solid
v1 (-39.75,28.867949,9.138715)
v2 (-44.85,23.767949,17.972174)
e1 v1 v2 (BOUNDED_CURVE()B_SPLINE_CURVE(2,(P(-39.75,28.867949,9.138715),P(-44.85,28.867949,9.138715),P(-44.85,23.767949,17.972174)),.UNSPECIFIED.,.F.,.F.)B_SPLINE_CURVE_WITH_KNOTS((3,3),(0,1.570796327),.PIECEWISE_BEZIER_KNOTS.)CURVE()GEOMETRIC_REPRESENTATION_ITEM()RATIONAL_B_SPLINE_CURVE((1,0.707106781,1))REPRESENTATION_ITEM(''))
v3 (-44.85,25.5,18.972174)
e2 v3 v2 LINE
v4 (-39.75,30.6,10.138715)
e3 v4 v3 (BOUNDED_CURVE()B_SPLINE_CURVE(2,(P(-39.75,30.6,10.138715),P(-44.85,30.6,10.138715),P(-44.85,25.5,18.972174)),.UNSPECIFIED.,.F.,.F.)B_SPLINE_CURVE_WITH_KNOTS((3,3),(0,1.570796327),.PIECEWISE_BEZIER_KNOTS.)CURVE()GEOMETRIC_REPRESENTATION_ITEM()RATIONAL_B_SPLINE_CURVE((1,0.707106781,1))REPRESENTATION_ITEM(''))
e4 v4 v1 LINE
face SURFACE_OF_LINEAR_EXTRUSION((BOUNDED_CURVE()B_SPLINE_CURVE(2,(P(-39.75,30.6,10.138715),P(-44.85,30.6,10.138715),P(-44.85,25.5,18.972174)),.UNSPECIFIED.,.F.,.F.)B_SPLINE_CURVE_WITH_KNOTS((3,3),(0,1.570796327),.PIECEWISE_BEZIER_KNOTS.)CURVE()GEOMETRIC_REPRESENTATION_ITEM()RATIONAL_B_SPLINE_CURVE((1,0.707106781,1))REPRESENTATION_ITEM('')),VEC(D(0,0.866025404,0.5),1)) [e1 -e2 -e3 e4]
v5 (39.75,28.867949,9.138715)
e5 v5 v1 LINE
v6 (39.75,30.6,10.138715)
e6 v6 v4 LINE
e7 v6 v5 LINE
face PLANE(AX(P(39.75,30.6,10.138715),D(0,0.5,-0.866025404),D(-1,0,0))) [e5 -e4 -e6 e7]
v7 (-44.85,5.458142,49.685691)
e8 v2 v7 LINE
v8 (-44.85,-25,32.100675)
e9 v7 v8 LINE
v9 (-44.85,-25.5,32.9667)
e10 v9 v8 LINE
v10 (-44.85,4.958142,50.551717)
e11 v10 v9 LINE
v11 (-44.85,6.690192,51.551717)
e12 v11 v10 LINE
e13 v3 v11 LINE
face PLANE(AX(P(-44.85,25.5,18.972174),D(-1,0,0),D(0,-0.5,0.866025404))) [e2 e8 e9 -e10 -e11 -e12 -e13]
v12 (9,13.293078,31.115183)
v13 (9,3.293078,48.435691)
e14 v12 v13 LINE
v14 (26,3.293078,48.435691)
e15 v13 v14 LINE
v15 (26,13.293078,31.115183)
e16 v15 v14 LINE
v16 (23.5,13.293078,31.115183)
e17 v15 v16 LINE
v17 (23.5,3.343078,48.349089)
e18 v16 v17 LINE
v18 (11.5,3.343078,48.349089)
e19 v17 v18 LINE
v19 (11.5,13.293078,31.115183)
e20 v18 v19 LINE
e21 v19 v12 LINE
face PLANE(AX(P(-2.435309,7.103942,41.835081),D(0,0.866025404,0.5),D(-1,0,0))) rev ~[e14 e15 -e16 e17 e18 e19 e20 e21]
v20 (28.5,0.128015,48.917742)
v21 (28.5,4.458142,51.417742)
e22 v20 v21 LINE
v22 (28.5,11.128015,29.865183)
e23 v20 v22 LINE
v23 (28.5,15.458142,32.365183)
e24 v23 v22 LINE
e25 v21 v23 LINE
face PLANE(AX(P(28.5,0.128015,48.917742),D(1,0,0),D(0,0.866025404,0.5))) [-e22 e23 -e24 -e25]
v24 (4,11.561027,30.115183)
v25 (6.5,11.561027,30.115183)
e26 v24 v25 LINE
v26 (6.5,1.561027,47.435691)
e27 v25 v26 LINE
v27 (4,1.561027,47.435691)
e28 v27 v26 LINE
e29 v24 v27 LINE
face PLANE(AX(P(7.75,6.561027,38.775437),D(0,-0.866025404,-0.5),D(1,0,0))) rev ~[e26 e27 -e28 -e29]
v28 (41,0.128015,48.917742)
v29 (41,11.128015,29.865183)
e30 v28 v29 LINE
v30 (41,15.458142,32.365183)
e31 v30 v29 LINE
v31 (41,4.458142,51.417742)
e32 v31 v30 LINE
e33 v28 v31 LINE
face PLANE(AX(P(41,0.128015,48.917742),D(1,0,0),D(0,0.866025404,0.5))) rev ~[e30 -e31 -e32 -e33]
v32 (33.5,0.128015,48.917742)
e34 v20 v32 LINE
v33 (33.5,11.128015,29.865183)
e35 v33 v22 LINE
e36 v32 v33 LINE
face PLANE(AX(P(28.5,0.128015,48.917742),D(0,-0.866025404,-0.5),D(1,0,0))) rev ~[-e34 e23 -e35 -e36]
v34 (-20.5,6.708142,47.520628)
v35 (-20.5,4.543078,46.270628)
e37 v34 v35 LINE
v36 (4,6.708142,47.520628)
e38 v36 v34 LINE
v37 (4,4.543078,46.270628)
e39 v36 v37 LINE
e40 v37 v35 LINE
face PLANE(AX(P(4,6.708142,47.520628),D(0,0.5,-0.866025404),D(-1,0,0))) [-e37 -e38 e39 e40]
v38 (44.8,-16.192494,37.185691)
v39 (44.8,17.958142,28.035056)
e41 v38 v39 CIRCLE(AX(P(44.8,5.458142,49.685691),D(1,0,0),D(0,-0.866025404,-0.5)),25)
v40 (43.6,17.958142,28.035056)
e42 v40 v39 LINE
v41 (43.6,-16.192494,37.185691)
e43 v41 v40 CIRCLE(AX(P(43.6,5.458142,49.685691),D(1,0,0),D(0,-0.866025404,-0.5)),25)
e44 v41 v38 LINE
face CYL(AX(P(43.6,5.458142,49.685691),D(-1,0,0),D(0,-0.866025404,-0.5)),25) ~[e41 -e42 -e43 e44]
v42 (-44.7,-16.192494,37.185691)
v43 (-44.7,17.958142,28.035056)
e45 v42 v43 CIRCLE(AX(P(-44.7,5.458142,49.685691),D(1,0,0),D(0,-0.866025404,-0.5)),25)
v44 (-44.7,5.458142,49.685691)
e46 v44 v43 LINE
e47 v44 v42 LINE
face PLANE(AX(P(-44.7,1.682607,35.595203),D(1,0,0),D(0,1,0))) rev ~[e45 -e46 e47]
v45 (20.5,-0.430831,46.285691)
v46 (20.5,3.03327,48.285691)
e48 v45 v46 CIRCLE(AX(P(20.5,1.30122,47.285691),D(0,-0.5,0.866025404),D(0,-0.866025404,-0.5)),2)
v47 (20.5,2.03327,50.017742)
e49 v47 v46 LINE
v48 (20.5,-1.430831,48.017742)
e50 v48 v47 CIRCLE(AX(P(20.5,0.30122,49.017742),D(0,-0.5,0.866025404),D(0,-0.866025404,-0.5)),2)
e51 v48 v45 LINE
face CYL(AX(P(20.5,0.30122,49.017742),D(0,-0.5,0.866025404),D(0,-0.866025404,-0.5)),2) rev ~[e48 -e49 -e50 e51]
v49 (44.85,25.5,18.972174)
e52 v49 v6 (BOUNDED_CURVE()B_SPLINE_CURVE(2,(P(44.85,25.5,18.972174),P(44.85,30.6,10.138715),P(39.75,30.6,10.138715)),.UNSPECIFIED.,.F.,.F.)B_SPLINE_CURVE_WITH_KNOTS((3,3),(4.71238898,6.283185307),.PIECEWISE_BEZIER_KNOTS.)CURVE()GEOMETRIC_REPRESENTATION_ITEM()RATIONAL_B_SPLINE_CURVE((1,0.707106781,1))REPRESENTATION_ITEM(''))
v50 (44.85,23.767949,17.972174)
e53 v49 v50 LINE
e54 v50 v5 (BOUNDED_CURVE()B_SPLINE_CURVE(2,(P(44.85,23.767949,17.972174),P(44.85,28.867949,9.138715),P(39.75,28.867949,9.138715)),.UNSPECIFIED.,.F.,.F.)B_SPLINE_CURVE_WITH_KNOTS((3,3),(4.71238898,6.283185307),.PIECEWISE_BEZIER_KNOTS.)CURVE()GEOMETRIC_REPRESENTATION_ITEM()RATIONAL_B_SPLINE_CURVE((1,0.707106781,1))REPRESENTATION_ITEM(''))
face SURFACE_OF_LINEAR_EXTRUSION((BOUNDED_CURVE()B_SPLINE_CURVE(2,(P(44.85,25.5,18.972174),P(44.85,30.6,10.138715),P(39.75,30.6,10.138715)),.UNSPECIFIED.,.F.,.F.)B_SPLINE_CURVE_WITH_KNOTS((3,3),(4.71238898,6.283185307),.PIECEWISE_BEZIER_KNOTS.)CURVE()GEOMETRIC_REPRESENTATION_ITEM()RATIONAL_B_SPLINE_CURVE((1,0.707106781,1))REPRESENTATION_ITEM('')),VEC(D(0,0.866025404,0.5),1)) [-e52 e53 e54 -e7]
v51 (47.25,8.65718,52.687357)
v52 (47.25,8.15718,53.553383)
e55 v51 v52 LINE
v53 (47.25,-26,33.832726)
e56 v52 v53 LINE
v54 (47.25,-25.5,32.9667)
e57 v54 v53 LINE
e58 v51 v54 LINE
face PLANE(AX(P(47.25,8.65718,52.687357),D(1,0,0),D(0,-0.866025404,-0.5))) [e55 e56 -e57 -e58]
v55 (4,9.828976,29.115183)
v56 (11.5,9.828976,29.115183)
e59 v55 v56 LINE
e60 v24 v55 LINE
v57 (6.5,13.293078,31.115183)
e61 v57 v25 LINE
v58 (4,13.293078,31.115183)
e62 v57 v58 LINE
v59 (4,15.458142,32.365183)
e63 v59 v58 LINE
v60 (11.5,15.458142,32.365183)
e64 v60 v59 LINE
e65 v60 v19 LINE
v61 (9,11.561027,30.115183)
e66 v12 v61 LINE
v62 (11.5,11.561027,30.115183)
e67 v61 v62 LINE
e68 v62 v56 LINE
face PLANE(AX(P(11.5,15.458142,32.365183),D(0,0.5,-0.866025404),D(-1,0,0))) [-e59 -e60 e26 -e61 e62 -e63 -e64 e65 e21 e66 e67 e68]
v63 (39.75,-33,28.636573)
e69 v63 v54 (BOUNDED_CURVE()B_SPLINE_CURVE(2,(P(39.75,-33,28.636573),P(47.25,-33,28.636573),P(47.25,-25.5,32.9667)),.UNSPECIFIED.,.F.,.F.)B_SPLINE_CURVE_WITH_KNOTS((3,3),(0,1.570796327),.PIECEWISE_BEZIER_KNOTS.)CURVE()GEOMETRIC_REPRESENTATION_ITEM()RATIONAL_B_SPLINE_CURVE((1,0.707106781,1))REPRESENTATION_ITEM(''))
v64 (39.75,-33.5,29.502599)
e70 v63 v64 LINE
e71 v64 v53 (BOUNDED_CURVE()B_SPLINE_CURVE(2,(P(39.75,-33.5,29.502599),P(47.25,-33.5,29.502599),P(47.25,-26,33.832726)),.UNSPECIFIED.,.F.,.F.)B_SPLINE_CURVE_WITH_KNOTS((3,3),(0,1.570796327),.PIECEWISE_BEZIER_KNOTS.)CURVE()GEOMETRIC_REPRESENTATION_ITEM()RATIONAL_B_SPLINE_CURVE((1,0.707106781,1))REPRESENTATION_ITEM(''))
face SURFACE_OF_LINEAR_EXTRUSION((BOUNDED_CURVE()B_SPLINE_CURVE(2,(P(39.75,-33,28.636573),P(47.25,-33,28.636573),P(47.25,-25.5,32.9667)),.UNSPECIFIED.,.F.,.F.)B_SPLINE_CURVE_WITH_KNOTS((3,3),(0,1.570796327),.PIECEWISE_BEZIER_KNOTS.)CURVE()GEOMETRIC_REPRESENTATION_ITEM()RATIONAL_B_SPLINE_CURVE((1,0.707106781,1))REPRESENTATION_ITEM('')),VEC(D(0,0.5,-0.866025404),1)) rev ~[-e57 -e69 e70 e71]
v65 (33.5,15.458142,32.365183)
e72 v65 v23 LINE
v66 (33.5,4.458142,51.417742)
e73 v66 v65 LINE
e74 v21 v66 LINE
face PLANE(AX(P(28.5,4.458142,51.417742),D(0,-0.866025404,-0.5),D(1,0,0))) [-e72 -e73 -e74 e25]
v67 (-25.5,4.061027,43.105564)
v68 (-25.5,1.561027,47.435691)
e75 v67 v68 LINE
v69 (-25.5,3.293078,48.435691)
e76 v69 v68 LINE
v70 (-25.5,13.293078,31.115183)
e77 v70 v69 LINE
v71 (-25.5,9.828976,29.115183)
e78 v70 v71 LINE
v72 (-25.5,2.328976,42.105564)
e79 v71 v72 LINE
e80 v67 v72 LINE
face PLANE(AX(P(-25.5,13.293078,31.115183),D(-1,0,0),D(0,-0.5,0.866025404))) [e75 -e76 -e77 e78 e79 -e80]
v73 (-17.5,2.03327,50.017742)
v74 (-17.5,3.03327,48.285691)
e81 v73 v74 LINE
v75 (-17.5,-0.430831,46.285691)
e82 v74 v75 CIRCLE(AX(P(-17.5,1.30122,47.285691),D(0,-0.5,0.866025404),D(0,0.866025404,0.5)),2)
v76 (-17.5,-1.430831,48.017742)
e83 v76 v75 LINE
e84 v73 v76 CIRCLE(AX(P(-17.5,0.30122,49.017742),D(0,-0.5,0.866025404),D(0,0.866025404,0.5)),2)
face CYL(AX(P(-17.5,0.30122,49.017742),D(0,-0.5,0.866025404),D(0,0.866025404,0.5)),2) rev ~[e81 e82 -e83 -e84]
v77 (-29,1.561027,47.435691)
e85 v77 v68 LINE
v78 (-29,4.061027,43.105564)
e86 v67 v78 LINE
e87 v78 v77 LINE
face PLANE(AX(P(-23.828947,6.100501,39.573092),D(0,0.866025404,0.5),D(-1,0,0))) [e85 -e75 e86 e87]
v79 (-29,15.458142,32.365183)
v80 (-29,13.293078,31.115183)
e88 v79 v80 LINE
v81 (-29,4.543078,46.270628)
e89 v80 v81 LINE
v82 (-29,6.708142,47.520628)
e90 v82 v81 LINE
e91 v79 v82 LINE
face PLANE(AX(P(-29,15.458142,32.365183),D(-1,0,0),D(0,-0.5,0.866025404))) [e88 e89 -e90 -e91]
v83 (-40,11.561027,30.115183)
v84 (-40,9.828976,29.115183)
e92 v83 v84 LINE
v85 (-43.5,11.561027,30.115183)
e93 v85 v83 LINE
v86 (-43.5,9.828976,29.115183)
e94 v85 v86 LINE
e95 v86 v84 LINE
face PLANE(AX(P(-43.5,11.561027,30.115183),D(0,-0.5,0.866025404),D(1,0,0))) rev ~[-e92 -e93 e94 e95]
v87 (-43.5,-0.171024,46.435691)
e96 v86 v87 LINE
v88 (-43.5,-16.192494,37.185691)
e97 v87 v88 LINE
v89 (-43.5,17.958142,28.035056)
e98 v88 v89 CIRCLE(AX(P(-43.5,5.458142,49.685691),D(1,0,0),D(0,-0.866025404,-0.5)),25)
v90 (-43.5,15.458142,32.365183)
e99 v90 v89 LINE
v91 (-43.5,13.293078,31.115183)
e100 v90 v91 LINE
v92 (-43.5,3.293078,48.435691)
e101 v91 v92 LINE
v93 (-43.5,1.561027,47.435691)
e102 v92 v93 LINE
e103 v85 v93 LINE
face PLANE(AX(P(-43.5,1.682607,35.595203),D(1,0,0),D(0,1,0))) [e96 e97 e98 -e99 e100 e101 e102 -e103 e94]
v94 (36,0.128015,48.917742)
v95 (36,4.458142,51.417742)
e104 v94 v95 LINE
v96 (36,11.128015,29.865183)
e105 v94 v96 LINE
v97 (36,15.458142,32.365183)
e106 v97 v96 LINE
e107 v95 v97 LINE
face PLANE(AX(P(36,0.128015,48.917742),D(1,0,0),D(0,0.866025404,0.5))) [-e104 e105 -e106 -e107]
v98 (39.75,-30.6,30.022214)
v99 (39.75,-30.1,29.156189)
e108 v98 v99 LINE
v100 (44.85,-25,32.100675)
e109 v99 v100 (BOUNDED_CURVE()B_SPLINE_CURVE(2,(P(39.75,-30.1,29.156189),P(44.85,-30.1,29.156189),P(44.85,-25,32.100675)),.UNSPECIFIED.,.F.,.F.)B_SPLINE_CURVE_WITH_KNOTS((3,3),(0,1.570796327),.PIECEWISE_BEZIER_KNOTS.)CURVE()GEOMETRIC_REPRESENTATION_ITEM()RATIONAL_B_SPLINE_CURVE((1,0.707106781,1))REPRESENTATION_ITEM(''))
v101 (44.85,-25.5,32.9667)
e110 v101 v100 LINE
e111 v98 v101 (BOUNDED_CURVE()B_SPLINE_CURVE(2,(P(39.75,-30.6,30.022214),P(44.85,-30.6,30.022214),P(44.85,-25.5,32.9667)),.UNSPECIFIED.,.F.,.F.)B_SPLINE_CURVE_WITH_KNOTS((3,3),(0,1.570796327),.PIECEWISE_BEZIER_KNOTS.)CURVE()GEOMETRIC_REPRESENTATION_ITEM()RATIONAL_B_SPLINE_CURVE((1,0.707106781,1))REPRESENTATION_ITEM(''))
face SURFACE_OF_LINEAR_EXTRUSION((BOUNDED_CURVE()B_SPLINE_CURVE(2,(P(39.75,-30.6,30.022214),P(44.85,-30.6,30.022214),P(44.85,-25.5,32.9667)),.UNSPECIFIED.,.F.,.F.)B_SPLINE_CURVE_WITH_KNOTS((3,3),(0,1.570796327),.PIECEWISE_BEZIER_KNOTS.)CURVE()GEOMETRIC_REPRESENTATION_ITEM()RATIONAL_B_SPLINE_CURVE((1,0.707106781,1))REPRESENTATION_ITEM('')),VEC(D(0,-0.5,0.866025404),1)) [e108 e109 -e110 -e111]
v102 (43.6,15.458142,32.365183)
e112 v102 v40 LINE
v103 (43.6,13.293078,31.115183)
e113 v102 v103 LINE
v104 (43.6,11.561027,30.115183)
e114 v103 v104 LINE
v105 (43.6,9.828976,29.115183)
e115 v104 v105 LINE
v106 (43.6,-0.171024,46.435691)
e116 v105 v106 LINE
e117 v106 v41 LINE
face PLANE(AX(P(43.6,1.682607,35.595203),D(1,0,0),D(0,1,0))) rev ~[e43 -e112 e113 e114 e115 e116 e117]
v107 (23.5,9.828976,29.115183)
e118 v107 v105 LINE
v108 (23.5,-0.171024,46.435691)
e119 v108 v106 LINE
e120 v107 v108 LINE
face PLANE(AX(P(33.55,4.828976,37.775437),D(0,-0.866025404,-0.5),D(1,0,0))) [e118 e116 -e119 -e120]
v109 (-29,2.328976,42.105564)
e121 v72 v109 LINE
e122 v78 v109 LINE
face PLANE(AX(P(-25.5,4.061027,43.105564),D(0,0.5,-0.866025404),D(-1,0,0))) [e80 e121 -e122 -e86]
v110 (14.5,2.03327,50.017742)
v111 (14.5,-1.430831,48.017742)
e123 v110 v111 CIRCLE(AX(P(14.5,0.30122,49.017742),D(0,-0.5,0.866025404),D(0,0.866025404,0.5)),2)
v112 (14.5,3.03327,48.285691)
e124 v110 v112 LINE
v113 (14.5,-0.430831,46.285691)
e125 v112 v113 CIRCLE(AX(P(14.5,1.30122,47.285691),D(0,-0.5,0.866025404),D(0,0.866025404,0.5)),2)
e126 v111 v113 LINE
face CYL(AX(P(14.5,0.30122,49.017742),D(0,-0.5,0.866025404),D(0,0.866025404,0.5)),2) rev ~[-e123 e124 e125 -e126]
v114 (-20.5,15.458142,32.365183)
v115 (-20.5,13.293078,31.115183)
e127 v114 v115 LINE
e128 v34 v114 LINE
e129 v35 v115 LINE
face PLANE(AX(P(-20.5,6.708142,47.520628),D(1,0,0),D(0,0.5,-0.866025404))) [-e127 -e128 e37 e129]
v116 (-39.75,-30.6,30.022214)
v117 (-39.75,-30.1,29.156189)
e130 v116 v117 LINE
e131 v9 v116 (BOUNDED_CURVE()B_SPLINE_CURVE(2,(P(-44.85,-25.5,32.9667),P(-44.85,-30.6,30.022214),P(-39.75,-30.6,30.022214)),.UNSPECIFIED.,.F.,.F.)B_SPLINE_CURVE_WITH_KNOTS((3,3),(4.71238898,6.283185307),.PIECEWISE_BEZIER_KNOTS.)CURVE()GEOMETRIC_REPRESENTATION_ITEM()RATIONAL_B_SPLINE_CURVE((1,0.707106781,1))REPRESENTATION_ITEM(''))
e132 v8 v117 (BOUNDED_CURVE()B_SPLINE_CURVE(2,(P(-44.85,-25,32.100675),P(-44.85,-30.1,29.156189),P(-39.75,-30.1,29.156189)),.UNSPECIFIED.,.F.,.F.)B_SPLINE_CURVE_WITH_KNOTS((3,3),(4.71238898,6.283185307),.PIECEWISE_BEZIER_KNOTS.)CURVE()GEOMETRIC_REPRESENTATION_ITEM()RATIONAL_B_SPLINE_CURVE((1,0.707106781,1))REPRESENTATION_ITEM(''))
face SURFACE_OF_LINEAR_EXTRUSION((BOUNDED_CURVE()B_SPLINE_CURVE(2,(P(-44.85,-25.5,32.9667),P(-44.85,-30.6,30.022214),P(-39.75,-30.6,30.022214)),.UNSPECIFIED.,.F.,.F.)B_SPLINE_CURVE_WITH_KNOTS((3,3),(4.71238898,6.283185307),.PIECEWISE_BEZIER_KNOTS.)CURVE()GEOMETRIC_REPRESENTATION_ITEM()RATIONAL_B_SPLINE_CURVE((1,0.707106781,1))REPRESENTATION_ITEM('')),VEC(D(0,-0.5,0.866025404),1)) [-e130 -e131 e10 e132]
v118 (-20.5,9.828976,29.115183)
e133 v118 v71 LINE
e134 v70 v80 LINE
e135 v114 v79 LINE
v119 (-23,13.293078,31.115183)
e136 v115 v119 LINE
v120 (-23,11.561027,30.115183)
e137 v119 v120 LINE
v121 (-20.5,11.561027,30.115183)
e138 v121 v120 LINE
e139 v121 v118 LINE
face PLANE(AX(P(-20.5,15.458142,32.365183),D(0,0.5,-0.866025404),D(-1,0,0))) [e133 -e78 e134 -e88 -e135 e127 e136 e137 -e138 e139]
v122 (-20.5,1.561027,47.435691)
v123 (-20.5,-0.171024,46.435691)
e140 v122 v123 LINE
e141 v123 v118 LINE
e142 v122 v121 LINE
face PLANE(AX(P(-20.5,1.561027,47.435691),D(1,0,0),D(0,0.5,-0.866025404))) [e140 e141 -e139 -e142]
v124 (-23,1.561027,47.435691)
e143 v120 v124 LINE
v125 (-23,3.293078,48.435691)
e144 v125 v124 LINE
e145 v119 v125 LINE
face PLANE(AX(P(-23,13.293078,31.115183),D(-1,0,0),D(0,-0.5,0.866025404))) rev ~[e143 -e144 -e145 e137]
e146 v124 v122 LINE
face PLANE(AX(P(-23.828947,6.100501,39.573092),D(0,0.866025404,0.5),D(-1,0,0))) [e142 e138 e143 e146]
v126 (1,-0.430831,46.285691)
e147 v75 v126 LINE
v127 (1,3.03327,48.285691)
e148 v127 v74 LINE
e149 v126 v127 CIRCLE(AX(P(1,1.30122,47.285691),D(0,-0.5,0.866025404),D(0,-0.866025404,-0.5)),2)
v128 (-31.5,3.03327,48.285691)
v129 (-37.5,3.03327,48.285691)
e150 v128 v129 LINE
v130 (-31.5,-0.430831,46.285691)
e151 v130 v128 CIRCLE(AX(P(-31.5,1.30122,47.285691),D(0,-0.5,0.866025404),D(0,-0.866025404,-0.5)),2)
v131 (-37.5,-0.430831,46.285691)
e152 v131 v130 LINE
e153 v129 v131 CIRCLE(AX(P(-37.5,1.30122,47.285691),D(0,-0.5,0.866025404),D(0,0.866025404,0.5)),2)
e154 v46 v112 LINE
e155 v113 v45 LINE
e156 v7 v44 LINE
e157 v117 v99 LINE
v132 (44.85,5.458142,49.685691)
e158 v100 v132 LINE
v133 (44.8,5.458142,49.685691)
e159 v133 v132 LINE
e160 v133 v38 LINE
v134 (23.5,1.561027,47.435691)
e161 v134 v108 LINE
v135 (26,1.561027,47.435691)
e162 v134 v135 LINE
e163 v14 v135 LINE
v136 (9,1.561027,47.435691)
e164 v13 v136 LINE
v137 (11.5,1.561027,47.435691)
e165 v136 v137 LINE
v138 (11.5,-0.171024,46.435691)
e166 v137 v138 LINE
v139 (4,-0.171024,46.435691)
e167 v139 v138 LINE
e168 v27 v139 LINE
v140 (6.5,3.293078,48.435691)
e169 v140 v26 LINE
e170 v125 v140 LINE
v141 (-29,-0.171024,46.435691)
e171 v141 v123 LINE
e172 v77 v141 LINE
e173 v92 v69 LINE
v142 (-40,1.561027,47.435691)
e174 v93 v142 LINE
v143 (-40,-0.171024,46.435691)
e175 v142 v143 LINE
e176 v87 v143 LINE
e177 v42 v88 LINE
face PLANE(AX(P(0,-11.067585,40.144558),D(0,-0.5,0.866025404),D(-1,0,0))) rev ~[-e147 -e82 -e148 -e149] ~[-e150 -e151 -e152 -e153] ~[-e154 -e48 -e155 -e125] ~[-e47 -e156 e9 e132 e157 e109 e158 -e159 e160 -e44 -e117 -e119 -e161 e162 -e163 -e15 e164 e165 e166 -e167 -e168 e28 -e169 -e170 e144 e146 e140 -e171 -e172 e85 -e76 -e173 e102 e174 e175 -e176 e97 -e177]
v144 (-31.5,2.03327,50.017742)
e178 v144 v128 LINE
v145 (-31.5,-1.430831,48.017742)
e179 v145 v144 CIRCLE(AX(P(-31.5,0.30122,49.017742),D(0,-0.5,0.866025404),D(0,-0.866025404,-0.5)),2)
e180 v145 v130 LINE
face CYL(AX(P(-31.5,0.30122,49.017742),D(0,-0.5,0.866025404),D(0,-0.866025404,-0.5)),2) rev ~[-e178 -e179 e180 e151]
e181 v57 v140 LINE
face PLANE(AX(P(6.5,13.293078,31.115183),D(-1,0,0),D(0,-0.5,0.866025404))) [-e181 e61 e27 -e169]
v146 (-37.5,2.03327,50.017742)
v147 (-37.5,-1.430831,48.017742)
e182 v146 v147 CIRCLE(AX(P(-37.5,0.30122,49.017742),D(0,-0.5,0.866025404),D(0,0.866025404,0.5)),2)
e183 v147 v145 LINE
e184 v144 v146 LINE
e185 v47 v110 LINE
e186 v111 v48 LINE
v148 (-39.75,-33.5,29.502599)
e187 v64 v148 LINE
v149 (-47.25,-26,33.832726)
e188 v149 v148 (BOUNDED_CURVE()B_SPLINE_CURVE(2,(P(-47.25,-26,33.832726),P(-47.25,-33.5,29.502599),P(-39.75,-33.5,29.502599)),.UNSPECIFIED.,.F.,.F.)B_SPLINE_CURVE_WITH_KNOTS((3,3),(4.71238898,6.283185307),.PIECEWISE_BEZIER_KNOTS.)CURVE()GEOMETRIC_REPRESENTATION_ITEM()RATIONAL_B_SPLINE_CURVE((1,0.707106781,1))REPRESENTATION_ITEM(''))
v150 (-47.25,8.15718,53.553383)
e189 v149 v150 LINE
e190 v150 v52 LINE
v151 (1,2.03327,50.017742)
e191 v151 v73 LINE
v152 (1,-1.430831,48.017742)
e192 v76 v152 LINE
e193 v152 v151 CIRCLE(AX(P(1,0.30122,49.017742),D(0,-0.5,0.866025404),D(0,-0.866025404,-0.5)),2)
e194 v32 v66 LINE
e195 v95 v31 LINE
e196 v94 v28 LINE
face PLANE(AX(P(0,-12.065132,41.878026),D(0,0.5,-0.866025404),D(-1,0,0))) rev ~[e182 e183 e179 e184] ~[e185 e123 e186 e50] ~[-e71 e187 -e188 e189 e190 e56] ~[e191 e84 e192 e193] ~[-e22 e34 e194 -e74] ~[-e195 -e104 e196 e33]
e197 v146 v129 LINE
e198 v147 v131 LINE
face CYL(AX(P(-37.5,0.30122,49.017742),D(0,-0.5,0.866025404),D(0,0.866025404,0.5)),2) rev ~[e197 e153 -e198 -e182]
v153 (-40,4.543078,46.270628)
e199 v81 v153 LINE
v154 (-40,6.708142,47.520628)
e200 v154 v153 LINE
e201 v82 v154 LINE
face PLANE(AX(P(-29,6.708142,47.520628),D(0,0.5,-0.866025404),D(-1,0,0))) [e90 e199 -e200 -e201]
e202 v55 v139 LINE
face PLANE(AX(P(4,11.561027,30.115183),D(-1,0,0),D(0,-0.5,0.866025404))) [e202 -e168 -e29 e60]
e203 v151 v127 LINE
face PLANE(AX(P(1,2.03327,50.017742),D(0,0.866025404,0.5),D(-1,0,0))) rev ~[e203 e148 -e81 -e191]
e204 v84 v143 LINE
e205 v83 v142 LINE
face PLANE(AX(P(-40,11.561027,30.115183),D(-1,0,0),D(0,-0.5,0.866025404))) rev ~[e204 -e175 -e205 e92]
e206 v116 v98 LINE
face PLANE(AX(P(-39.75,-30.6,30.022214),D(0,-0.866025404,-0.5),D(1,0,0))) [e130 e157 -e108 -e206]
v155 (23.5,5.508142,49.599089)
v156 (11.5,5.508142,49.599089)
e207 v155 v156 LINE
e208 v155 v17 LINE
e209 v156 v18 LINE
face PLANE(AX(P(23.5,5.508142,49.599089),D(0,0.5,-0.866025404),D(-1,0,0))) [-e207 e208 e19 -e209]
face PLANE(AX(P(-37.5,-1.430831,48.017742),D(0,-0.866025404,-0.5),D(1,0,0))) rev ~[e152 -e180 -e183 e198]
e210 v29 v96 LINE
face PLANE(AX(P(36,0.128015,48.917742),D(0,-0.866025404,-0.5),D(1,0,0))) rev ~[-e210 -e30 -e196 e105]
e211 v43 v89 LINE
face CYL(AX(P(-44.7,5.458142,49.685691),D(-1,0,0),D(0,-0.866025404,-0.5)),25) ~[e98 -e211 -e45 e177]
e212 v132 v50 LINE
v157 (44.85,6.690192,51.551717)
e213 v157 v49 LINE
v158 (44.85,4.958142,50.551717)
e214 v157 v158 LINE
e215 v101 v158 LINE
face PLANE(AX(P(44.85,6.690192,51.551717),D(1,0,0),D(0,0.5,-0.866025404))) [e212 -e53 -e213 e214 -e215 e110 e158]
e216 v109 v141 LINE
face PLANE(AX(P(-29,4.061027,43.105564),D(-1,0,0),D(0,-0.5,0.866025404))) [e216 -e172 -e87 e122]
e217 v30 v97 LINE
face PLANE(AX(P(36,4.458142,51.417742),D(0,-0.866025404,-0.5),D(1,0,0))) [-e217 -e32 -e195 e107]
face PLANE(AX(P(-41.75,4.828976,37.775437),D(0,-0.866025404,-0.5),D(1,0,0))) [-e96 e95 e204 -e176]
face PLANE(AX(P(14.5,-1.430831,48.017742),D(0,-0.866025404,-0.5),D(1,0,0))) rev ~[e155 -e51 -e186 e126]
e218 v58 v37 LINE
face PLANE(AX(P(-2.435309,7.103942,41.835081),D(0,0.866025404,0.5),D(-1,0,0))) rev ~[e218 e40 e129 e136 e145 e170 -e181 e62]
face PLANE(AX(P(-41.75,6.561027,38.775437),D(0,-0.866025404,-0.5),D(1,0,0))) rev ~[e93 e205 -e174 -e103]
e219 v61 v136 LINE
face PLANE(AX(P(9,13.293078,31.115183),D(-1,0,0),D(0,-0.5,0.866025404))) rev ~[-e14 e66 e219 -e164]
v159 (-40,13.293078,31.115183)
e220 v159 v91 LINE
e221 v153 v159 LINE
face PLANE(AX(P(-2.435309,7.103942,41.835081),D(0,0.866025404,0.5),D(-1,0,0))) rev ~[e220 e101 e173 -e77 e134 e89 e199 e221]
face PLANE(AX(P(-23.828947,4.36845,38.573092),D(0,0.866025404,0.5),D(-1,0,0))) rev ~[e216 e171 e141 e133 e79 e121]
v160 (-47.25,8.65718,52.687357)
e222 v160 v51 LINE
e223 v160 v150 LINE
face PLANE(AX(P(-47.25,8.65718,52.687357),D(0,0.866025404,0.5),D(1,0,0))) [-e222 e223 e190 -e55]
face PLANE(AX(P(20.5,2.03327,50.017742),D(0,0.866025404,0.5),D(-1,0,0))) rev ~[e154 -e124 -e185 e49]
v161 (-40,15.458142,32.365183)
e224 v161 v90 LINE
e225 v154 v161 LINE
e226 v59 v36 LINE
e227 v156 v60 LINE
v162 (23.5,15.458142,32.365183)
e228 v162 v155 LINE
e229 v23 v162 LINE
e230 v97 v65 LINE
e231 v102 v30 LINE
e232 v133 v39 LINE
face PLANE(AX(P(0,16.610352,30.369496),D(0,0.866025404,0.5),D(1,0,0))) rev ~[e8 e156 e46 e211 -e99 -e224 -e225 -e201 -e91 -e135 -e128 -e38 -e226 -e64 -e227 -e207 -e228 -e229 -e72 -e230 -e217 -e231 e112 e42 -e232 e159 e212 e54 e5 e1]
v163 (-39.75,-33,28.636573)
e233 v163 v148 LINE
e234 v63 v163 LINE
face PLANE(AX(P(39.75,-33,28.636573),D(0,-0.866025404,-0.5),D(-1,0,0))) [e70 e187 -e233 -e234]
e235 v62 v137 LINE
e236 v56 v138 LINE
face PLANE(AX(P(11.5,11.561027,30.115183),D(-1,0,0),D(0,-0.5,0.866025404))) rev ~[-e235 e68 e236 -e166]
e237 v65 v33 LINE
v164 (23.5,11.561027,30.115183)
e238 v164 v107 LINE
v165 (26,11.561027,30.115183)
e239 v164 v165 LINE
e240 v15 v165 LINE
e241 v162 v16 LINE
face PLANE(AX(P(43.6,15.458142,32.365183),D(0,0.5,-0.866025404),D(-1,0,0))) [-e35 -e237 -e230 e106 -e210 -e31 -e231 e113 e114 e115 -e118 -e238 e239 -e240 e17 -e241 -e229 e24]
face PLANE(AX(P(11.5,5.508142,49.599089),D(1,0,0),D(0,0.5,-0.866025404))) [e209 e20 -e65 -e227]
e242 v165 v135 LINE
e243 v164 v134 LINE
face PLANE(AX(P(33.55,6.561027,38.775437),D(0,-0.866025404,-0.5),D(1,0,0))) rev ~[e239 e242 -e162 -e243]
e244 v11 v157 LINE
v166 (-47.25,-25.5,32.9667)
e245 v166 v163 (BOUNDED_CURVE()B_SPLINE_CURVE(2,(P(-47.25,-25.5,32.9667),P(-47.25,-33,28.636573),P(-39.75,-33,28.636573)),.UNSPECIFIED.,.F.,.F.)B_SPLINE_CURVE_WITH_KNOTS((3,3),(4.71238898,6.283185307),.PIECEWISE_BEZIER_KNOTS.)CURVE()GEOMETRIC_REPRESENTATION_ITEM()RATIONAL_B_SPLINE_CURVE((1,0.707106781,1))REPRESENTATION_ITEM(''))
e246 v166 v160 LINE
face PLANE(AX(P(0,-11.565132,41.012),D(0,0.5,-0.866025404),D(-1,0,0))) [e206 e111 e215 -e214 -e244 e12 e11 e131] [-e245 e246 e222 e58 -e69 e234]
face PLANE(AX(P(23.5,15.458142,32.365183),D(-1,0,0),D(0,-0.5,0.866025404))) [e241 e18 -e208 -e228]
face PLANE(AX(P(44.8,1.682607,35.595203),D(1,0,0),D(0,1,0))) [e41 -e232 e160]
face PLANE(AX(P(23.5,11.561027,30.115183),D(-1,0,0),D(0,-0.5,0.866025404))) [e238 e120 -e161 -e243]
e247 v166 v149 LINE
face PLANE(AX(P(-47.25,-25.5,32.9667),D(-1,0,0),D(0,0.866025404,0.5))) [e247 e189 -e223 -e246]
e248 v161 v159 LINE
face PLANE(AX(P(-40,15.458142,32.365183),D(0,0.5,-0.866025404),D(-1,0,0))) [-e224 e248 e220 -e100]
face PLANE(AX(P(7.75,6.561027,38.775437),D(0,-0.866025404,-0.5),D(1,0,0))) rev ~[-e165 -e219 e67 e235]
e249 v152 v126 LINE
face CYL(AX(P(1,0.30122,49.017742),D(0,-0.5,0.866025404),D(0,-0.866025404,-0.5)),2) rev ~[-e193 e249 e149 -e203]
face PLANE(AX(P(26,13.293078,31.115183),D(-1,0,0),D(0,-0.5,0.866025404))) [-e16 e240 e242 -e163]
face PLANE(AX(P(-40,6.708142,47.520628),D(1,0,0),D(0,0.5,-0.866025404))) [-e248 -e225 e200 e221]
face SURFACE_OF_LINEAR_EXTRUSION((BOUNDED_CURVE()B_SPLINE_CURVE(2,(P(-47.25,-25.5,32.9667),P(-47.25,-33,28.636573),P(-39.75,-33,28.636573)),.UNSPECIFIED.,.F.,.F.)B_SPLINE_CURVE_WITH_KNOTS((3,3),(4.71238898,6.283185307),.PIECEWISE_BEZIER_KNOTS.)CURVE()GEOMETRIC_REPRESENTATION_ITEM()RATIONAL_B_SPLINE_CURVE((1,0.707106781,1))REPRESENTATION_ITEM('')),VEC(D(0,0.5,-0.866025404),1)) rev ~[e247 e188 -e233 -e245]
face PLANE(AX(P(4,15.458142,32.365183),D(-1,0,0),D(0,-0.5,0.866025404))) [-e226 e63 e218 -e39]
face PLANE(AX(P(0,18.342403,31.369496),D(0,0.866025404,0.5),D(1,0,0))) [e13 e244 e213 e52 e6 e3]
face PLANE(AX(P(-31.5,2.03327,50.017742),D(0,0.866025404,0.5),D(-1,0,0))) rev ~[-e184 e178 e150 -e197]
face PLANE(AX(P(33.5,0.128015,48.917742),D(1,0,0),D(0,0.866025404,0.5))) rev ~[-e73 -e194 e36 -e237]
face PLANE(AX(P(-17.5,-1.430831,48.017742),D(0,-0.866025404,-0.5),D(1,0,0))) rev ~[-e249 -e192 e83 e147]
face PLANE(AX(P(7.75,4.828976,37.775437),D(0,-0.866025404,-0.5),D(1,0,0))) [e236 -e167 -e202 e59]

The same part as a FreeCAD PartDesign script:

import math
import FreeCAD as App
import Part
import Sketcher

V = App.Vector
Q = App.Units.Quantity


def add_polygon(sketch, points):
    """Adds a closed chain of lines whose ends are joined by coincident constraints."""
    first, n = sketch.GeometryCount, len(points)
    for a, b in zip(points, points[1:] + points[:1]):
        sketch.addGeometry(Part.LineSegment(App.Vector(*a, 0), App.Vector(*b, 0)), False)
    for i in range(n):
        sketch.addConstraint(Sketcher.Constraint("Coincident", first + i, 2, first + (i + 1) % n, 1))

doc = App.newDocument("Part")
body = doc.addObject("PartDesign::Body", "Body")
body.AllowCompound = True

sketch1 = doc.addObject("Sketcher::SketchObject", "Sketch")
body.addObject(sketch1)
sketch1.AttachmentSupport = (doc.XY_Plane, [""])
sketch1.MapMode = "FlatFace"
sketch1.addGeometry(Part.ArcOfCircle(Part.Circle(V(-17.5, 24.769735, 0), V(0, 0, 1), 2), math.radians(90), math.radians(270)), False)
sketch1.addGeometry(Part.LineSegment(V(-17.5, 22.769735, 0), V(1, 22.769735, 0)), False)
sketch1.addGeometry(Part.ArcOfCircle(Part.Circle(V(1, 24.769735, 0), V(0, 0, 1), 2), math.radians(-90), math.radians(90)), False)
sketch1.addGeometry(Part.LineSegment(V(1, 26.769735, 0), V(-17.5, 26.769735, 0)), False)
sketch1.addGeometry(Part.ArcOfCircle(Part.Circle(V(-31.5, 24.769735, 0), V(0, 0, 1), 2), math.radians(-90), math.radians(90)), False)
sketch1.addGeometry(Part.LineSegment(V(-31.5, 26.769735, 0), V(-37.5, 26.769735, 0)), False)
sketch1.addGeometry(Part.ArcOfCircle(Part.Circle(V(-37.5, 24.769735, 0), V(0, 0, 1), 2), math.radians(90), math.radians(270)), False)
sketch1.addGeometry(Part.LineSegment(V(-37.5, 22.769735, 0), V(-31.5, 22.769735, 0)), False)
sketch1.addGeometry(Part.ArcOfCircle(Part.Circle(V(14.5, 24.769735, 0), V(0, 0, 1), 2), math.radians(90), math.radians(270)), False)
sketch1.addGeometry(Part.LineSegment(V(14.5, 22.769735, 0), V(20.5, 22.769735, 0)), False)
sketch1.addGeometry(Part.ArcOfCircle(Part.Circle(V(20.5, 24.769735, 0), V(0, 0, 1), 2), math.radians(-90), math.radians(90)), False)
sketch1.addGeometry(Part.LineSegment(V(20.5, 26.769735, 0), V(14.5, 26.769735, 0)), False)
add_polygon(sketch1, [(28.5, 29.569735), (28.5, 24.569735), (33.5, 24.569735), (33.5, 29.569735)])
add_polygon(sketch1, [(36, 29.569735), (36, 24.569735), (41, 24.569735), (41, 29.569735)])
sketch1.addConstraint(Sketcher.Constraint("Tangent", 0, 2, 1, 1))
sketch1.addConstraint(Sketcher.Constraint("Tangent", 1, 2, 2, 1))
sketch1.addConstraint(Sketcher.Constraint("Tangent", 2, 2, 3, 1))
sketch1.addConstraint(Sketcher.Constraint("Tangent", 3, 2, 0, 1))
sketch1.addConstraint(Sketcher.Constraint("Tangent", 4, 2, 5, 1))
sketch1.addConstraint(Sketcher.Constraint("Tangent", 5, 2, 6, 1))
sketch1.addConstraint(Sketcher.Constraint("Tangent", 6, 2, 7, 1))
sketch1.addConstraint(Sketcher.Constraint("Tangent", 7, 2, 4, 1))
sketch1.addConstraint(Sketcher.Constraint("Tangent", 8, 2, 9, 1))
sketch1.addConstraint(Sketcher.Constraint("Tangent", 9, 2, 10, 1))
sketch1.addConstraint(Sketcher.Constraint("Tangent", 10, 2, 11, 1))
sketch1.addConstraint(Sketcher.Constraint("Tangent", 11, 2, 8, 1))
sketch1.addConstraint(Sketcher.Constraint("Horizontal", 1))
sketch1.addConstraint(Sketcher.Constraint("Horizontal", 3))
sketch1.addConstraint(Sketcher.Constraint("Horizontal", 5))
sketch1.addConstraint(Sketcher.Constraint("Horizontal", 7))
sketch1.addConstraint(Sketcher.Constraint("Horizontal", 9))
sketch1.addConstraint(Sketcher.Constraint("Horizontal", 11))
sketch1.addConstraint(Sketcher.Constraint("Vertical", 12))
sketch1.addConstraint(Sketcher.Constraint("Horizontal", 13))
sketch1.addConstraint(Sketcher.Constraint("Vertical", 14))
sketch1.addConstraint(Sketcher.Constraint("Horizontal", 15))
sketch1.addConstraint(Sketcher.Constraint("Vertical", 16))
sketch1.addConstraint(Sketcher.Constraint("Horizontal", 17))
sketch1.addConstraint(Sketcher.Constraint("Vertical", 18))
sketch1.addConstraint(Sketcher.Constraint("Horizontal", 19))
sketch1.addConstraint(Sketcher.Constraint("Equal", 2, 4))
sketch1.addConstraint(Sketcher.Constraint("Equal", 6, 8))
sketch1.addConstraint(Sketcher.Constraint("Horizontal", 2, 3, 4, 3))
sketch1.addConstraint(Sketcher.Constraint("Horizontal", 6, 3, 8, 3))
sketch1.addConstraint(Sketcher.Constraint("Horizontal", 13, 2, 16, 2))
sketch1.addConstraint(Sketcher.Constraint("Horizontal", 15, 2, 18, 2))
sketch1.addConstraint(Sketcher.Constraint("Equal", 7, 9))
sketch1.addConstraint(Sketcher.Constraint("Equal", 15, 17))
sketch1.addConstraint(Sketcher.Constraint("Equal", 19, 12))
sketch1.addConstraint(Sketcher.Constraint("Radius", 0, 2.0))
sketch1.addConstraint(Sketcher.Constraint("DistanceX", 5, 2, 5, 1, 6.0))
sketch1.addConstraint(Sketcher.Constraint("DistanceX", 13, 1, 13, 2, 5.0))
sketch1.addConstraint(Sketcher.Constraint("DistanceX", 1, 1, 1, 2, 18.5))
sketch1.addConstraint(Sketcher.Constraint("DistanceX", -1, 1, 2, 3, 1.0))
sketch1.addConstraint(Sketcher.Constraint("DistanceX", -1, 1, 16, 2, 36.0))
sketch1.addConstraint(Sketcher.Constraint("DistanceX", 4, 3, 0, 3, 14.0))
sketch1.addConstraint(Sketcher.Constraint("DistanceX", 0, 3, 8, 3, 32.0))
sketch1.addConstraint(Sketcher.Constraint("DistanceX", 10, 3, 12, 2, 8.0))
sketch1.addConstraint(Sketcher.Constraint("DistanceY", 12, 2, 10, 3, 0.2))
sketch1.addConstraint(Sketcher.Constraint("DistanceY", -1, 1, 0, 3, 24.769735))
pad1 = doc.addObject("PartDesign::Pad", "Pad")
body.addObject(pad1)
pad1.Profile = sketch1
pad1.Length = 25
pad1.Reversed = True
body2 = doc.addObject("PartDesign::Body", "Body001")
body2.AllowCompound = True
doc.recompute()

body.Placement = App.Placement(V(0, -21.15, 36.632875), App.Rotation(V(1, 0, 0), 30))
boolean = doc.addObject("PartDesign::Boolean", "Boolean")
body2.addObject(boolean)
boolean.Type = "Fuse"
boolean.addObjects([body])
body3 = doc.addObject("PartDesign::Body", "Body002")
body3.AllowCompound = True

sketch2 = doc.addObject("Sketcher::SketchObject", "Sketch001")
body3.addObject(sketch2)
sketch2.AttachmentSupport = (doc.getObject("XY_Plane002"), [""])
sketch2.MapMode = "FlatFace"
add_polygon(sketch2, [(26, 40.3), (26, 20.3), (43.6, 20.3), (43.6, 40.3)])
add_polygon(sketch2, [(-25.5, 40.3), (-25.5, 20.3), (-23, 20.3), (-23, 40.3)])
add_polygon(sketch2, [(6.5, 40.3), (6.5, 20.3), (9, 20.3), (9, 40.3)])
sketch2.addConstraint(Sketcher.Constraint("Vertical", 0))
sketch2.addConstraint(Sketcher.Constraint("Horizontal", 1))
sketch2.addConstraint(Sketcher.Constraint("Vertical", 2))
sketch2.addConstraint(Sketcher.Constraint("Horizontal", 3))
sketch2.addConstraint(Sketcher.Constraint("Vertical", 4))
sketch2.addConstraint(Sketcher.Constraint("Horizontal", 5))
sketch2.addConstraint(Sketcher.Constraint("Vertical", 6))
sketch2.addConstraint(Sketcher.Constraint("Horizontal", 7))
sketch2.addConstraint(Sketcher.Constraint("Vertical", 8))
sketch2.addConstraint(Sketcher.Constraint("Horizontal", 9))
sketch2.addConstraint(Sketcher.Constraint("Vertical", 10))
sketch2.addConstraint(Sketcher.Constraint("Horizontal", 11))
sketch2.addConstraint(Sketcher.Constraint("Horizontal", 1, 2, 4, 2))
sketch2.addConstraint(Sketcher.Constraint("Horizontal", 3, 2, 6, 2))
sketch2.addConstraint(Sketcher.Constraint("Horizontal", 5, 2, 8, 2))
sketch2.addConstraint(Sketcher.Constraint("Horizontal", 7, 2, 10, 2))
sketch2.addConstraint(Sketcher.Constraint("Equal", 7, 9))
sketch2.addConstraint(Sketcher.Constraint("DistanceY", 0, 2, 0, 1, 20.0))
sketch2.addConstraint(Sketcher.Constraint("DistanceX", 1, 1, 1, 2, 17.6))
sketch2.addConstraint(Sketcher.Constraint("DistanceX", 5, 1, 5, 2, 2.5))
sketch2.addConstraint(Sketcher.Constraint("DistanceX", -1, 1, 0, 2, 26.0))
sketch2.addConstraint(Sketcher.Constraint("DistanceX", 5, 2, -1, 1, 23.0))
sketch2.addConstraint(Sketcher.Constraint("DistanceX", -1, 1, 9, 2, 9.0))
sketch2.addConstraint(Sketcher.Constraint("DistanceY", -1, 1, 0, 2, 20.3))
pad2 = doc.addObject("PartDesign::Pad", "Pad001")
body3.addObject(pad2)
pad2.Profile = sketch2
pad2.Length = 2
body4 = doc.addObject("PartDesign::Body", "Body003")
body4.AllowCompound = True
doc.recompute()

body3.Placement = App.Placement(V(0, 23.443078, 13.534867), App.Rotation(V(1, 0, 0), 120))
boolean2 = doc.addObject("PartDesign::Boolean", "Boolean001")
body4.addObject(boolean2)
boolean2.Type = "Fuse"
boolean2.addObjects([body3])
body5 = doc.addObject("PartDesign::Body", "Body004")

sketch3 = doc.addObject("Sketcher::SketchObject", "Sketch002")
body5.addObject(sketch3)
sketch3.AttachmentSupport = (doc.getObject("XY_Plane004"), [""])
sketch3.MapMode = "FlatFace"
add_polygon(sketch3, [(43.6, 40.3), (-43.5, 40.3), (-43.5, 20.3), (-40, 20.3), (-40, 37.8), (-29, 37.8), (-29, 20.3), (-20.5, 20.3), (-20.5, 37.8), (4, 37.8), (4, 20.3), (11.5, 20.3), (11.5, 40.2), (23.5, 40.2), (23.5, 20.3), (43.6, 20.3)])
sketch3.addConstraint(Sketcher.Constraint("Horizontal", 0))
sketch3.addConstraint(Sketcher.Constraint("Vertical", 1))
sketch3.addConstraint(Sketcher.Constraint("Horizontal", 2))
sketch3.addConstraint(Sketcher.Constraint("Vertical", 3))
sketch3.addConstraint(Sketcher.Constraint("Horizontal", 4))
sketch3.addConstraint(Sketcher.Constraint("Vertical", 5))
sketch3.addConstraint(Sketcher.Constraint("Horizontal", 6))
sketch3.addConstraint(Sketcher.Constraint("Vertical", 7))
sketch3.addConstraint(Sketcher.Constraint("Horizontal", 8))
sketch3.addConstraint(Sketcher.Constraint("Vertical", 9))
sketch3.addConstraint(Sketcher.Constraint("Horizontal", 10))
sketch3.addConstraint(Sketcher.Constraint("Vertical", 11))
sketch3.addConstraint(Sketcher.Constraint("Horizontal", 12))
sketch3.addConstraint(Sketcher.Constraint("Vertical", 13))
sketch3.addConstraint(Sketcher.Constraint("Horizontal", 14))
sketch3.addConstraint(Sketcher.Constraint("Vertical", 15))
sketch3.addConstraint(Sketcher.Constraint("Horizontal", 2, 2, 5, 2))
sketch3.addConstraint(Sketcher.Constraint("Horizontal", 4, 2, 7, 2))
sketch3.addConstraint(Sketcher.Constraint("Horizontal", 6, 2, 9, 2))
sketch3.addConstraint(Sketcher.Constraint("Horizontal", 10, 2, 13, 2))
sketch3.addConstraint(Sketcher.Constraint("DistanceX", 4, 1, 4, 2, 11.0))
sketch3.addConstraint(Sketcher.Constraint("DistanceX", 12, 1, 12, 2, 12.0))
sketch3.addConstraint(Sketcher.Constraint("DistanceY", 1, 2, 1, 1, 20.0))
sketch3.addConstraint(Sketcher.Constraint("DistanceX", 0, 2, 0, 1, 87.1))
sketch3.addConstraint(Sketcher.Constraint("DistanceX", 2, 1, 2, 2, 3.5))
sketch3.addConstraint(Sketcher.Constraint("DistanceX", 6, 1, 6, 2, 8.5))
sketch3.addConstraint(Sketcher.Constraint("DistanceX", 8, 1, 8, 2, 24.5))
sketch3.addConstraint(Sketcher.Constraint("DistanceX", 10, 1, 10, 2, 7.5))
sketch3.addConstraint(Sketcher.Constraint("DistanceY", 3, 1, 3, 2, 17.5))
sketch3.addConstraint(Sketcher.Constraint("DistanceY", 11, 1, 11, 2, 19.9))
sketch3.addConstraint(Sketcher.Constraint("DistanceX", 2, 2, -1, 1, 40.0))
sketch3.addConstraint(Sketcher.Constraint("DistanceY", -1, 1, 0, 2, 40.3))
pad3 = doc.addObject("PartDesign::Pad", "Pad002")
body5.addObject(pad3)
pad3.Profile = sketch3
pad3.Length = 2.5
body6 = doc.addObject("PartDesign::Body", "Body005")
doc.recompute()

body5.Placement = App.Placement(V(0, 25.608142, 14.784867), App.Rotation(V(1, 0, 0), 120))
boolean3 = doc.addObject("PartDesign::Boolean", "Boolean002")
body6.addObject(boolean3)
boolean3.Type = "Fuse"
boolean3.addObjects([body5])
body7 = doc.addObject("PartDesign::Body", "Body006")

sketch4 = doc.addObject("Sketcher::SketchObject", "Sketch003")
body7.addObject(sketch4)
sketch4.AttachmentSupport = (doc.getObject("YZ_Plane006"), [""])
sketch4.MapMode = "FlatFace"
sketch4.addGeometry(Part.LineSegment(V(5.458142, 49.685691, 0), V(-16.192494, 37.185691, 0)), False)
sketch4.addGeometry(Part.ArcOfCircle(Part.Circle(V(5.458142, 49.685691, 0), V(0, 0, 1), 25), math.radians(-150), math.radians(-60)), False)
sketch4.addGeometry(Part.LineSegment(V(17.958142, 28.035056, 0), V(5.458142, 49.685691, 0)), False)
sketch4.addConstraint(Sketcher.Constraint("Coincident", 0, 2, 1, 1))
sketch4.addConstraint(Sketcher.Constraint("Coincident", 1, 2, 2, 1))
sketch4.addConstraint(Sketcher.Constraint("Coincident", 2, 2, 0, 1))
sketch4.addConstraint(Sketcher.Constraint("Coincident", 2, 2, 1, 3))
sketch4.addConstraint(Sketcher.Constraint("Perpendicular", 0, 2))
sketch4.addConstraint(Sketcher.Constraint("Radius", 1, 25.0))
sketch4.addConstraint(Sketcher.Constraint("Angle", 0, Q("-150 deg")))
sketch4.addConstraint(Sketcher.Constraint("DistanceX", -1, 1, 1, 3, 5.458142))
sketch4.addConstraint(Sketcher.Constraint("DistanceY", -1, 1, 1, 3, 49.685691))
pad4 = doc.addObject("PartDesign::Pad", "Pad003")
body7.addObject(pad4)
pad4.Profile = sketch4
pad4.Length = 1.2
body8 = doc.addObject("PartDesign::Body", "Body007")
doc.recompute()

body7.Placement = App.Placement(V(-44.7, 0, 0), App.Rotation(V(0, 0, 1), 0))
boolean4 = doc.addObject("PartDesign::Boolean", "Boolean003")
body8.addObject(boolean4)
boolean4.Type = "Fuse"
boolean4.addObjects([body7])
body9 = doc.addObject("PartDesign::Body", "Body008")

sketch5 = doc.addObject("Sketcher::SketchObject", "Sketch004")
body9.addObject(sketch5)
sketch5.AttachmentSupport = (doc.getObject("YZ_Plane008"), [""])
sketch5.MapMode = "FlatFace"
sketch5.addGeometry(Part.LineSegment(V(5.458142, 49.685691, 0), V(-16.192494, 37.185691, 0)), False)
sketch5.addGeometry(Part.ArcOfCircle(Part.Circle(V(5.458142, 49.685691, 0), V(0, 0, 1), 25), math.radians(-150), math.radians(-60)), False)
sketch5.addGeometry(Part.LineSegment(V(17.958142, 28.035056, 0), V(5.458142, 49.685691, 0)), False)
sketch5.addConstraint(Sketcher.Constraint("Coincident", 0, 2, 1, 1))
sketch5.addConstraint(Sketcher.Constraint("Coincident", 1, 2, 2, 1))
sketch5.addConstraint(Sketcher.Constraint("Coincident", 2, 2, 0, 1))
sketch5.addConstraint(Sketcher.Constraint("Coincident", 2, 2, 1, 3))
sketch5.addConstraint(Sketcher.Constraint("Perpendicular", 0, 2))
sketch5.addConstraint(Sketcher.Constraint("Radius", 1, 25.0))
sketch5.addConstraint(Sketcher.Constraint("Angle", 0, Q("-150 deg")))
sketch5.addConstraint(Sketcher.Constraint("DistanceX", -1, 1, 1, 3, 5.458142))
sketch5.addConstraint(Sketcher.Constraint("DistanceY", -1, 1, 1, 3, 49.685691))
pad5 = doc.addObject("PartDesign::Pad", "Pad004")
body9.addObject(pad5)
pad5.Profile = sketch5
pad5.Length = 1.2
body10 = doc.addObject("PartDesign::Body", "Body009")
doc.recompute()

body9.Placement = App.Placement(V(43.6, 0, 0), App.Rotation(V(0, 0, 1), 0))
boolean5 = doc.addObject("PartDesign::Boolean", "Boolean004")
body10.addObject(boolean5)
boolean5.Type = "Fuse"
boolean5.addObjects([body9])
body11 = doc.addObject("PartDesign::Body", "Body010")

sketch6 = doc.addObject("Sketcher::SketchObject", "Sketch005")
body11.addObject(sketch6)
sketch6.Placement = App.Placement(V(0, -11.896283, 40.82081), App.Rotation(V(-1, 0, 0), V(0, -0.866025404, -0.5), V(0, -0.5, 0.866025404), "ZXY"))
sketch6.addGeometry(Part.LineSegment(V(44.85, -21.461813, 0), V(44.85, 15.70822, 0)), False)
sketch6.addGeometry(Part.BSplineCurve([V(44.85, 15.70822, 0), V(44.85, 21.597192, 0), V(39.75, 21.597192, 0)], [3, 3], [4.71238898, 6.283185307], False, 2, [1, 0.707106781, 1], False), False)
sketch6.addGeometry(Part.LineSegment(V(39.75, 21.597192, 0), V(-39.75, 21.597192, 0)), False)
sketch6.addGeometry(Part.BSplineCurve([V(-39.75, 21.597192, 0), V(-44.85, 21.597192, 0), V(-44.85, 15.70822, 0)], [3, 3], [0, 1.570796327], False, 2, [1, 0.707106781, 1], False), False)
sketch6.addGeometry(Part.LineSegment(V(-44.85, 15.70822, 0), V(-44.85, -21.461813, 0)), False)
sketch6.addGeometry(Part.LineSegment(V(-44.85, -21.461813, 0), V(44.85, -21.461813, 0)), False)
sketch6.addConstraint(Sketcher.Constraint("Block", 1))
sketch6.addConstraint(Sketcher.Constraint("Block", 3))
sketch6.addConstraint(Sketcher.Constraint("Coincident", 0, 2, 1, 1))
sketch6.addConstraint(Sketcher.Constraint("Coincident", 1, 2, 2, 1))
sketch6.addConstraint(Sketcher.Constraint("Coincident", 2, 2, 3, 1))
sketch6.addConstraint(Sketcher.Constraint("Coincident", 3, 2, 4, 1))
sketch6.addConstraint(Sketcher.Constraint("Coincident", 4, 2, 5, 1))
sketch6.addConstraint(Sketcher.Constraint("Coincident", 5, 2, 0, 1))
sketch6.addConstraint(Sketcher.Constraint("Vertical", 0))
sketch6.addConstraint(Sketcher.Constraint("Vertical", 4))
sketch6.addConstraint(Sketcher.Constraint("Horizontal", 5))
sketch6.addConstraint(Sketcher.Constraint("DistanceY", 0, 1, 0, 2, 37.170032))
pad6 = doc.addObject("PartDesign::Pad", "Pad005")
body11.addObject(pad6)
pad6.Profile = sketch6
pad6.Length = 1
pad6.Reversed = True
body12 = doc.addObject("PartDesign::Body", "Body011")

sketch7 = doc.addObject("Sketcher::SketchObject", "Sketch006")
body12.addObject(sketch7)
sketch7.AttachmentSupport = (doc.getObject("XY_Plane011"), [""])
sketch7.MapMode = "FlatFace"
sketch7.addGeometry(Part.LineSegment(V(-47.25, 33.841016, 0), V(-47.25, -5.600298, 0)), False)
sketch7.addGeometry(Part.BSplineCurve([V(-47.25, -5.600298, 0), V(-47.25, -14.260552, 0), V(-39.75, -14.260552, 0)], [3, 3], [4.71238898, 6.283185307], False, 2, [1, 0.707106781, 1], False), False)
sketch7.addGeometry(Part.LineSegment(V(-39.75, -14.260552, 0), V(39.75, -14.260552, 0)), False)
sketch7.addGeometry(Part.BSplineCurve([V(39.75, -14.260552, 0), V(47.25, -14.260552, 0), V(47.25, -5.600298, 0)], [3, 3], [0, 1.570796327], False, 2, [1, 0.707106781, 1], False), False)
sketch7.addGeometry(Part.LineSegment(V(47.25, -5.600298, 0), V(47.25, 33.841016, 0)), False)
sketch7.addGeometry(Part.LineSegment(V(47.25, 33.841016, 0), V(-47.25, 33.841016, 0)), False)
sketch7.addConstraint(Sketcher.Constraint("Block", 1))
sketch7.addConstraint(Sketcher.Constraint("Block", 3))
sketch7.addConstraint(Sketcher.Constraint("Coincident", 0, 2, 1, 1))
sketch7.addConstraint(Sketcher.Constraint("Coincident", 1, 2, 2, 1))
sketch7.addConstraint(Sketcher.Constraint("Coincident", 2, 2, 3, 1))
sketch7.addConstraint(Sketcher.Constraint("Coincident", 3, 2, 4, 1))
sketch7.addConstraint(Sketcher.Constraint("Coincident", 4, 2, 5, 1))
sketch7.addConstraint(Sketcher.Constraint("Coincident", 5, 2, 0, 1))
sketch7.addConstraint(Sketcher.Constraint("Vertical", 0))
sketch7.addConstraint(Sketcher.Constraint("Vertical", 4))
sketch7.addConstraint(Sketcher.Constraint("Horizontal", 5))
sketch7.addConstraint(Sketcher.Constraint("DistanceY", 0, 2, 0, 1, 39.441314))
pad7 = doc.addObject("PartDesign::Pad", "Pad006")
body12.addObject(pad7)
pad7.Profile = sketch7
pad7.Length = 1
body13 = doc.addObject("PartDesign::Body", "Body012")
doc.recompute()

body12.Placement = App.Placement(V(0, -20.65, 35.766849), App.Rotation(V(1, 0, 0), 30))
boolean6 = doc.addObject("PartDesign::Boolean", "Boolean005")
body13.addObject(boolean6)
boolean6.Type = "Fuse"
boolean6.addObjects([body12])
body14 = doc.addObject("PartDesign::Body", "Body013")

sketch8 = doc.addObject("Sketcher::SketchObject", "Sketch007")
body14.addObject(sketch8)
sketch8.Placement = App.Placement(V(0, 18.588504, 30.943237), App.Rotation(V(1, 0, 0), V(0, 0.5, -0.866025404), V(0, 0.866025404, 0.5), "ZXY"))
sketch8.addGeometry(Part.LineSegment(V(39.75, 24.022992, 0), V(-39.75, 24.022992, 0)), False)
sketch8.addGeometry(Part.BSplineCurve([V(-39.75, 24.022992, 0), V(-44.85, 24.022992, 0), V(-44.85, 13.822992, 0)], [3, 3], [0, 1.570796327], False, 2, [1, 0.707106781, 1], False), False)
sketch8.addGeometry(Part.LineSegment(V(-44.85, 13.822992, 0), V(-44.85, -23.796623, 0)), False)
sketch8.addGeometry(Part.LineSegment(V(-44.85, -23.796623, 0), V(44.85, -23.796623, 0)), False)
sketch8.addGeometry(Part.LineSegment(V(44.85, -23.796623, 0), V(44.85, 13.822992, 0)), False)
sketch8.addGeometry(Part.BSplineCurve([V(44.85, 13.822992, 0), V(44.85, 24.022992, 0), V(39.75, 24.022992, 0)], [3, 3], [4.71238898, 6.283185307], False, 2, [1, 0.707106781, 1], False), False)
sketch8.addConstraint(Sketcher.Constraint("Block", 1))
sketch8.addConstraint(Sketcher.Constraint("Block", 5))
sketch8.addConstraint(Sketcher.Constraint("Coincident", 0, 2, 1, 1))
sketch8.addConstraint(Sketcher.Constraint("Coincident", 1, 2, 2, 1))
sketch8.addConstraint(Sketcher.Constraint("Coincident", 2, 2, 3, 1))
sketch8.addConstraint(Sketcher.Constraint("Coincident", 3, 2, 4, 1))
sketch8.addConstraint(Sketcher.Constraint("Coincident", 4, 2, 5, 1))
sketch8.addConstraint(Sketcher.Constraint("Coincident", 5, 2, 0, 1))
sketch8.addConstraint(Sketcher.Constraint("Vertical", 2))
sketch8.addConstraint(Sketcher.Constraint("Horizontal", 3))
sketch8.addConstraint(Sketcher.Constraint("Vertical", 4))
sketch8.addConstraint(Sketcher.Constraint("DistanceY", 2, 2, 2, 1, 37.619615))
pad8 = doc.addObject("PartDesign::Pad", "Pad007")
body14.addObject(pad8)
pad8.Profile = sketch8
pad8.Length = 2
pad8.Reversed = True
doc.recompute()

boolean7 = doc.addObject("PartDesign::Boolean", "Boolean006")
body14.addObject(boolean7)
boolean7.Type = "Fuse"
boolean7.addObjects([body11])
doc.recompute()

boolean8 = doc.addObject("PartDesign::Boolean", "Boolean007")
body14.addObject(boolean8)
boolean8.Type = "Fuse"
boolean8.addObjects([body13])
body15 = doc.addObject("PartDesign::Body", "Body014")
body15.AllowCompound = True

sketch9 = doc.addObject("Sketcher::SketchObject", "Sketch008")
body15.addObject(sketch9)
sketch9.AttachmentSupport = (doc.getObject("XY_Plane014"), [""])
sketch9.MapMode = "FlatFace"
add_polygon(sketch9, [(-43.5, 40.3), (-43.5, 20.3), (-40, 20.3), (-40, 40.3)])
add_polygon(sketch9, [(-20.5, 40.3), (-29, 40.3), (-29, 35.3), (-25.5, 35.3), (-25.5, 20.3), (-20.5, 20.3)])
add_polygon(sketch9, [(4, 40.3), (4, 20.3), (11.5, 20.3), (11.5, 40.3)])
add_polygon(sketch9, [(23.5, 40.3), (23.5, 20.3), (43.6, 20.3), (43.6, 40.3)])
sketch9.addConstraint(Sketcher.Constraint("Vertical", 0))
sketch9.addConstraint(Sketcher.Constraint("Horizontal", 1))
sketch9.addConstraint(Sketcher.Constraint("Vertical", 2))
sketch9.addConstraint(Sketcher.Constraint("Horizontal", 3))
sketch9.addConstraint(Sketcher.Constraint("Horizontal", 4))
sketch9.addConstraint(Sketcher.Constraint("Vertical", 5))
sketch9.addConstraint(Sketcher.Constraint("Horizontal", 6))
sketch9.addConstraint(Sketcher.Constraint("Vertical", 7))
sketch9.addConstraint(Sketcher.Constraint("Horizontal", 8))
sketch9.addConstraint(Sketcher.Constraint("Vertical", 9))
sketch9.addConstraint(Sketcher.Constraint("Vertical", 10))
sketch9.addConstraint(Sketcher.Constraint("Horizontal", 11))
sketch9.addConstraint(Sketcher.Constraint("Vertical", 12))
sketch9.addConstraint(Sketcher.Constraint("Horizontal", 13))
sketch9.addConstraint(Sketcher.Constraint("Vertical", 14))
sketch9.addConstraint(Sketcher.Constraint("Horizontal", 15))
sketch9.addConstraint(Sketcher.Constraint("Vertical", 16))
sketch9.addConstraint(Sketcher.Constraint("Horizontal", 17))
sketch9.addConstraint(Sketcher.Constraint("Horizontal", 3, 2, 4, 2))
sketch9.addConstraint(Sketcher.Constraint("Horizontal", 1, 2, 7, 2))
sketch9.addConstraint(Sketcher.Constraint("Horizontal", 8, 2, 10, 2))
sketch9.addConstraint(Sketcher.Constraint("Horizontal", 9, 2, 12, 2))
sketch9.addConstraint(Sketcher.Constraint("Horizontal", 11, 2, 14, 2))
sketch9.addConstraint(Sketcher.Constraint("Horizontal", 13, 2, 16, 2))
sketch9.addConstraint(Sketcher.Constraint("Equal", 3, 6))
sketch9.addConstraint(Sketcher.Constraint("Equal", 8, 5))
sketch9.addConstraint(Sketcher.Constraint("DistanceX", 8, 1, 8, 2, 5.0))
sketch9.addConstraint(Sketcher.Constraint("DistanceY", 0, 2, 0, 1, 20.0))
sketch9.addConstraint(Sketcher.Constraint("DistanceX", 1, 1, 1, 2, 3.5))
sketch9.addConstraint(Sketcher.Constraint("DistanceX", 11, 1, 11, 2, 7.5))
sketch9.addConstraint(Sketcher.Constraint("DistanceX", 15, 1, 15, 2, 20.1))
sketch9.addConstraint(Sketcher.Constraint("DistanceX", 1, 2, -1, 1, 40.0))
sketch9.addConstraint(Sketcher.Constraint("DistanceX", 4, 2, -1, 1, 29.0))
sketch9.addConstraint(Sketcher.Constraint("DistanceX", -1, 1, 10, 2, 4.0))
sketch9.addConstraint(Sketcher.Constraint("DistanceX", 11, 2, 14, 2, 12.0))
sketch9.addConstraint(Sketcher.Constraint("DistanceY", -1, 1, 0, 2, 20.3))
pad9 = doc.addObject("PartDesign::Pad", "Pad008")
body15.addObject(pad9)
pad9.Profile = sketch9
pad9.Length = 2
body16 = doc.addObject("PartDesign::Body", "Body015")
body16.AllowCompound = True
doc.recompute()

body15.Placement = App.Placement(V(0, 21.711027, 12.534867), App.Rotation(V(1, 0, 0), 120))
boolean9 = doc.addObject("PartDesign::Boolean", "Boolean008")
body16.addObject(boolean9)
boolean9.Type = "Fuse"
boolean9.addObjects([body15])
doc.recompute()

boolean10 = doc.addObject("PartDesign::Boolean", "Boolean009")
body16.addObject(boolean10)
boolean10.Type = "Fuse"
boolean10.addObjects([body4])
doc.recompute()

boolean11 = doc.addObject("PartDesign::Boolean", "Boolean010")
body16.addObject(boolean11)
boolean11.Type = "Fuse"
boolean11.addObjects([body6])
doc.recompute()

boolean12 = doc.addObject("PartDesign::Boolean", "Boolean011")
body16.addObject(boolean12)
boolean12.Type = "Fuse"
boolean12.addObjects([body8])
doc.recompute()

boolean13 = doc.addObject("PartDesign::Boolean", "Boolean012")
body16.addObject(boolean13)
boolean13.Type = "Fuse"
boolean13.addObjects([body10])
doc.recompute()

boolean14 = doc.addObject("PartDesign::Boolean", "Boolean013")
body16.addObject(boolean14)
boolean14.Type = "Fuse"
boolean14.addObjects([body14])
doc.recompute()

boolean15 = doc.addObject("PartDesign::Boolean", "Boolean014")
body16.addObject(boolean15)
boolean15.Type = "Cut"
boolean15.addObjects([body2])

doc.recompute()
